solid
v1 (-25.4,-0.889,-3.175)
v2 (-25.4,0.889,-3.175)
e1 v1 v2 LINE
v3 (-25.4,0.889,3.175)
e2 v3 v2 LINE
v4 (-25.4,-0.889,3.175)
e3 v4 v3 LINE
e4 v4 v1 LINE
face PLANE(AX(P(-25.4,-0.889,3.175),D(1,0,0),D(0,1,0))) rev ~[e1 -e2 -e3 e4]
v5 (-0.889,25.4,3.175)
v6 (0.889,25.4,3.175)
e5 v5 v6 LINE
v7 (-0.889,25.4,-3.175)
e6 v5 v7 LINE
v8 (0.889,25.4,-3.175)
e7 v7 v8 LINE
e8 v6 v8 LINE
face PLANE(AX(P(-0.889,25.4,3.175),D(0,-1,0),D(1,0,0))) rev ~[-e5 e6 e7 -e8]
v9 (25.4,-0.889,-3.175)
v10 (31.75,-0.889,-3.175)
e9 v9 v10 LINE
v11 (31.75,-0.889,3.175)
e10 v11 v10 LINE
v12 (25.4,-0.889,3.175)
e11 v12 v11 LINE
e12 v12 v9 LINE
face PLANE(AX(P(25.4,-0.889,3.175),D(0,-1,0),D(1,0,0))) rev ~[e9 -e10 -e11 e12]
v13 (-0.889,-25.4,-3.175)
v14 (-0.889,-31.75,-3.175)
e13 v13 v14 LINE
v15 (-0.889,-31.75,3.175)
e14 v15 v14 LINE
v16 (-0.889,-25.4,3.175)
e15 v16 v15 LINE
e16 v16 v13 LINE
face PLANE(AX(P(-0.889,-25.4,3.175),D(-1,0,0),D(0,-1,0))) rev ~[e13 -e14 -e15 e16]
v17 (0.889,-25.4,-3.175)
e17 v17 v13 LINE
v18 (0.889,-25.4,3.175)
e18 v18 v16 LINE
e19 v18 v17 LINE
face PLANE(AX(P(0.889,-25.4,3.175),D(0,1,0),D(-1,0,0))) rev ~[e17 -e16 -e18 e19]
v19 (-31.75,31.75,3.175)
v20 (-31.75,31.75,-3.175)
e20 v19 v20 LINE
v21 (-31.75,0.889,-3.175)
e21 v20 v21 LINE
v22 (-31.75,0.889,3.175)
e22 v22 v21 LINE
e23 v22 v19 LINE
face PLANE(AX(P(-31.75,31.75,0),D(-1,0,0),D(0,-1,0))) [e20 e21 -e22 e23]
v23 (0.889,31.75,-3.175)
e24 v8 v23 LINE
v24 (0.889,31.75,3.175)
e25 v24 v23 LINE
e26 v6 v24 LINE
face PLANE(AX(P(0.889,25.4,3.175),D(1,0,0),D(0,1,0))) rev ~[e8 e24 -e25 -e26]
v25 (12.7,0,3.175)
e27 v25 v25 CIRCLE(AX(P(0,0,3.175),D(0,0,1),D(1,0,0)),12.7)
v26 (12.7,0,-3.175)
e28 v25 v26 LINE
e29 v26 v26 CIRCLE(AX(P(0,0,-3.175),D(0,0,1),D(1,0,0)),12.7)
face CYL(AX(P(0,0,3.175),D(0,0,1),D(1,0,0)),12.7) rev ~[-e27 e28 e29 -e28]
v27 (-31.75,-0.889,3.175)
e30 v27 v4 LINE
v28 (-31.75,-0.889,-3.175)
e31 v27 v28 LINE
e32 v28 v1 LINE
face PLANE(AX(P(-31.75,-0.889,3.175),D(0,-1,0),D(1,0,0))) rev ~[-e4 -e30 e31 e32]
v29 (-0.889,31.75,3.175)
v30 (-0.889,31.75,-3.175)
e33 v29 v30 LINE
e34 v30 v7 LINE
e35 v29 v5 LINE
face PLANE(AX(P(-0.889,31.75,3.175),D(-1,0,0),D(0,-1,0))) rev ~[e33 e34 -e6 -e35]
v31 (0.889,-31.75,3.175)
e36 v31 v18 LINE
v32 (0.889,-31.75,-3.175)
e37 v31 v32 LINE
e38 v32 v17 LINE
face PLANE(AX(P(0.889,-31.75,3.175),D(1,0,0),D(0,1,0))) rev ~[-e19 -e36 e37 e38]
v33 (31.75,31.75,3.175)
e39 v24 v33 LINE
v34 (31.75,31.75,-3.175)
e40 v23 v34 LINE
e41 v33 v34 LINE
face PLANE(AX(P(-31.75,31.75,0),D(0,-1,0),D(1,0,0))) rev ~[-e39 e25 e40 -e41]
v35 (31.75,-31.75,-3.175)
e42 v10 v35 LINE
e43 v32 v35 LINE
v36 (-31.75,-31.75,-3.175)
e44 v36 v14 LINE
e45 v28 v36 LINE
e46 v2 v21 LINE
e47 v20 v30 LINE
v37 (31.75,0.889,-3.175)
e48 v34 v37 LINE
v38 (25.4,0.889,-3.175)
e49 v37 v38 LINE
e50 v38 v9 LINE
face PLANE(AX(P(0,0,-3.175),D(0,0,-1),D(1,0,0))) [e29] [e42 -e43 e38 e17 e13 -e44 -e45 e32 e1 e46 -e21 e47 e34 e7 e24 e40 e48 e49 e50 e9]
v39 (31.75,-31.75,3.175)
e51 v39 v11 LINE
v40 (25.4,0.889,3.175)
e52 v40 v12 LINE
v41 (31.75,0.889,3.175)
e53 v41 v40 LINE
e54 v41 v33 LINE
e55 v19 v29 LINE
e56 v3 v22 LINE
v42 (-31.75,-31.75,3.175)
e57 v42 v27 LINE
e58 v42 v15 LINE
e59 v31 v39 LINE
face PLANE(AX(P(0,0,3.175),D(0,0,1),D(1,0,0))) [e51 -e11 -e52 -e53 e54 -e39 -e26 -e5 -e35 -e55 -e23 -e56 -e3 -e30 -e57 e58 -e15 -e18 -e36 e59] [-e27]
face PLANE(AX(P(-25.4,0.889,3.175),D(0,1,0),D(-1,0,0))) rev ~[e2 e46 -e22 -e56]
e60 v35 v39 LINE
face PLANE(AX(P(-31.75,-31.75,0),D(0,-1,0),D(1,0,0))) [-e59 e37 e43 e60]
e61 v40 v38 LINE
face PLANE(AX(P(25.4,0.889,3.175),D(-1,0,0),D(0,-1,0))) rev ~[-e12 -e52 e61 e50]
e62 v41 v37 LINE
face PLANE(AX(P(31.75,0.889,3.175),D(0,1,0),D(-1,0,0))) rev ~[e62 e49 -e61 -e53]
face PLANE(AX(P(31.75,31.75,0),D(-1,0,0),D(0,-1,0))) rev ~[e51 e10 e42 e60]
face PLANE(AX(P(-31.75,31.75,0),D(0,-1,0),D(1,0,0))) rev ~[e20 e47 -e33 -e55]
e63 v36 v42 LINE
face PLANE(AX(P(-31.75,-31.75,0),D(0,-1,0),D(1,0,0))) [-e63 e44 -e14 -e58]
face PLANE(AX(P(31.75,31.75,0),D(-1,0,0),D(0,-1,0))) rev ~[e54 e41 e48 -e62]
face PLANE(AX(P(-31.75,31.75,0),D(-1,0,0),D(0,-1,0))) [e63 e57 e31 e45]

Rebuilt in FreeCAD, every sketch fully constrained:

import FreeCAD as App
import Part
import Sketcher
Q = App.Units.Quantity

doc = App.newDocument("Part")
params = doc.addObject("Spreadsheet::Sheet", "Params")
for row, (alias, value) in enumerate([
    ("sketch1_width", "2.5 in"),
    ("pad1_length", "0.125 in"),
    ("sketch2_width", "2.5 in"),
    ("pad2_length", "0.125 in"),
    ("sketch3_diameter", "1 in"),
    ("sketch3_width", "0.07 in"),
    ("sketch3_width2", "0.25 in"),
    ("pocket1_length", "0.25 in"),
    ("sketch4_diameter", "1 in"),
    ("sketch4_width", "0.07 in"),
    ("sketch4_width2", "0.25 in"),
    ("pocket2_length", "1 in"),
    ("sketch5_diameter", "1 in"),
    ("sketch5_width", "0.07 in"),
    ("sketch5_width2", "0.25 in"),
    ("pocket3_length", "1 in"),
    ("sketch6_diameter", "1 in"),
    ("sketch6_width", "0.07 in"),
    ("sketch6_width2", "0.25 in"),
    ("pocket4_length", "1 in"),
    ("sketch7_diameter", "1 in"),
    ("sketch7_width", "0.07 in"),
    ("sketch7_width2", "0.25 in"),
    ("pocket5_length", "1 in"),
], start=1):
    params.set(f"A{row}", alias)
    params.set(f"B{row}", "=" + value)
    params.setAlias(f"B{row}", alias)

body = doc.addObject("PartDesign::Body", "Body")

# Sketch on XY plane
sketch1 = body.newObject("Sketcher::SketchObject", "Sketch")
sketch1.AttachmentSupport = (doc.getObject("XY_Plane"), [""])
sketch1.MapMode = "FlatFace"
sketch1.addGeometry([
    Part.LineSegment(App.Vector(-32, 32, 0), App.Vector(-32, -32, 0)),
    Part.LineSegment(App.Vector(-32, -32, 0), App.Vector(32, -32, 0)),
    Part.LineSegment(App.Vector(32, -32, 0), App.Vector(32, 32, 0)),
    Part.LineSegment(App.Vector(32, 32, 0), App.Vector(-32, 32, 0)),
], False)
sketch1.addConstraint([
    Sketcher.Constraint("Coincident", 0, 2, 1, 1),
    Sketcher.Constraint("Coincident", 1, 2, 2, 1),
    Sketcher.Constraint("Coincident", 2, 2, 3, 1),
    Sketcher.Constraint("Coincident", 3, 2, 0, 1),
    Sketcher.Constraint("Vertical", 0),
    Sketcher.Constraint("Horizontal", 1),
    Sketcher.Constraint("Vertical", 2),
    Sketcher.Constraint("Horizontal", 3),
    Sketcher.Constraint("Symmetric", 0, 2, 2, 2, -1, 1),
    Sketcher.Constraint("Equal", 3, 0),
    Sketcher.Constraint("DistanceX", 1, 1, 1, 2, Q("2.5 in")),
])
sketch1.setExpression("Constraints[10]", "Params.sketch1_width")
pad1 = body.newObject("PartDesign::Pad", "Pad")
pad1.Profile = sketch1
pad1.setExpression("Length", "Params.pad1_length")

# Sketch on XY plane
sketch2 = body.newObject("Sketcher::SketchObject", "Sketch001")
sketch2.AttachmentSupport = (doc.getObject("XY_Plane"), [""])
sketch2.MapMode = "FlatFace"
sketch2.addGeometry([
    Part.LineSegment(App.Vector(-32, -32, 0), App.Vector(-32, 32, 0)),
    Part.LineSegment(App.Vector(-32, 32, 0), App.Vector(32, 32, 0)),
    Part.LineSegment(App.Vector(32, 32, 0), App.Vector(32, -32, 0)),
    Part.LineSegment(App.Vector(32, -32, 0), App.Vector(-32, -32, 0)),
], False)
sketch2.addConstraint([
    Sketcher.Constraint("Coincident", 0, 2, 1, 1),
    Sketcher.Constraint("Coincident", 1, 2, 2, 1),
    Sketcher.Constraint("Coincident", 2, 2, 3, 1),
    Sketcher.Constraint("Coincident", 3, 2, 0, 1),
    Sketcher.Constraint("Vertical", 0),
    Sketcher.Constraint("Horizontal", 1),
    Sketcher.Constraint("Vertical", 2),
    Sketcher.Constraint("Horizontal", 3),
    Sketcher.Constraint("Symmetric", 0, 2, 2, 2, -1, 1),
    Sketcher.Constraint("Equal", 3, 0),
    Sketcher.Constraint("DistanceX", 1, 1, 1, 2, Q("2.5 in")),
])
sketch2.setExpression("Constraints[10]", "Params.sketch2_width")
pad2 = body.newObject("PartDesign::Pad", "Pad001")
pad2.Profile = sketch2
pad2.setExpression("Length", "Params.pad2_length")
pad2.Reversed = True

# Sketch on XY plane
sketch3 = body.newObject("Sketcher::SketchObject", "Sketch002")
sketch3.AttachmentSupport = (doc.getObject("XY_Plane"), [""])
sketch3.MapMode = "FlatFace"
sketch3.AttachmentOffset = App.Placement(App.Vector(0, 0, 0.125 * 25.4), App.Rotation())
sketch3.addGeometry([
    Part.Circle(App.Vector(0, 0, 0), App.Vector(0, 0, 1), 12.7),  # 0
    Part.LineSegment(App.Vector(0.9, 31.8, 0), App.Vector(-0.9, 31.8, 0)),  # 1
    Part.LineSegment(App.Vector(-0.9, 31.8, 0), App.Vector(-0.9, 25.4, 0)),  # 2
    Part.LineSegment(App.Vector(-0.9, 25.4, 0), App.Vector(0.9, 25.4, 0)),  # 3
    Part.LineSegment(App.Vector(0.9, 25.4, 0), App.Vector(0.9, 31.8, 0)),  # 4
    Part.LineSegment(App.Vector(31.8, -0.9, 0), App.Vector(31.8, 0.9, 0)),  # 5
    Part.LineSegment(App.Vector(31.8, 0.9, 0), App.Vector(25.4, 0.9, 0)),  # 6
    Part.LineSegment(App.Vector(25.4, 0.9, 0), App.Vector(25.4, -0.9, 0)),  # 7
    Part.LineSegment(App.Vector(25.4, -0.9, 0), App.Vector(31.8, -0.9, 0)),  # 8
    Part.LineSegment(App.Vector(-0.9, -31.8, 0), App.Vector(0.9, -31.8, 0)),  # 9
    Part.LineSegment(App.Vector(0.9, -31.8, 0), App.Vector(0.9, -25.4, 0)),  # 10
    Part.LineSegment(App.Vector(0.9, -25.4, 0), App.Vector(-0.9, -25.4, 0)),  # 11
    Part.LineSegment(App.Vector(-0.9, -25.4, 0), App.Vector(-0.9, -31.8, 0)),  # 12
    Part.LineSegment(App.Vector(-31.8, 0.9, 0), App.Vector(-31.8, -0.9, 0)),  # 13
    Part.LineSegment(App.Vector(-31.8, -0.9, 0), App.Vector(-25.4, -0.9, 0)),  # 14
    Part.LineSegment(App.Vector(-25.4, -0.9, 0), App.Vector(-25.4, 0.9, 0)),  # 15
    Part.LineSegment(App.Vector(-25.4, 0.9, 0), App.Vector(-31.8, 0.9, 0)),  # 16
], False)
sketch3.addConstraint([
    Sketcher.Constraint("Coincident", 1, 2, 2, 1),
    Sketcher.Constraint("Coincident", 2, 2, 3, 1),
    Sketcher.Constraint("Coincident", 3, 2, 4, 1),
    Sketcher.Constraint("Coincident", 4, 2, 1, 1),
    Sketcher.Constraint("Coincident", 5, 2, 6, 1),
    Sketcher.Constraint("Coincident", 6, 2, 7, 1),
    Sketcher.Constraint("Coincident", 7, 2, 8, 1),
    Sketcher.Constraint("Coincident", 8, 2, 5, 1),
    Sketcher.Constraint("Coincident", 9, 2, 10, 1),
    Sketcher.Constraint("Coincident", 10, 2, 11, 1),
    Sketcher.Constraint("Coincident", 11, 2, 12, 1),
    Sketcher.Constraint("Coincident", 12, 2, 9, 1),
    Sketcher.Constraint("Coincident", 13, 2, 14, 1),
    Sketcher.Constraint("Coincident", 14, 2, 15, 1),
    Sketcher.Constraint("Coincident", 15, 2, 16, 1),
    Sketcher.Constraint("Coincident", 16, 2, 13, 1),
    Sketcher.Constraint("Horizontal", 1),
    Sketcher.Constraint("Vertical", 2),
    Sketcher.Constraint("Horizontal", 3),
    Sketcher.Constraint("Vertical", 4),
    Sketcher.Constraint("Vertical", 5),
    Sketcher.Constraint("Horizontal", 6),
    Sketcher.Constraint("Vertical", 7),
    Sketcher.Constraint("Horizontal", 8),
    Sketcher.Constraint("Horizontal", 9),
    Sketcher.Constraint("Vertical", 10),
    Sketcher.Constraint("Horizontal", 11),
    Sketcher.Constraint("Vertical", 12),
    Sketcher.Constraint("Vertical", 13),
    Sketcher.Constraint("Horizontal", 14),
    Sketcher.Constraint("Vertical", 15),
    Sketcher.Constraint("Horizontal", 16),
    Sketcher.Constraint("Coincident", 0, 3, -1, 1),
    Sketcher.Constraint("Symmetric", 1, 2, 9, 2, -1, 1),
    Sketcher.Constraint("Symmetric", 3, 2, 11, 2, -1, 1),
    Sketcher.Constraint("Symmetric", 5, 2, 13, 2, -1, 1),
    Sketcher.Constraint("Symmetric", 7, 2, 15, 2, -1, 1),
    Sketcher.Constraint("Horizontal", 8, 2, 13, 2),
    Sketcher.Constraint("Vertical", 4, 2, 9, 2),
    Sketcher.Constraint("Equal", 16, 2),
    Sketcher.Constraint("Equal", 11, 5),
    Sketcher.Constraint("Diameter", 0, Q("1 in")),
    Sketcher.Constraint("DistanceY", -1, 1, 2, 2, Q("1 in")),
    Sketcher.Constraint("DistanceX", -1, 1, 6, 2, Q("1 in")),
    Sketcher.Constraint("DistanceX", 1, 2, 1, 1, Q("0.07 in")),
    Sketcher.Constraint("DistanceX", 6, 2, 6, 1, Q("0.25 in")),
])
sketch3.setExpression("Constraints[41]", "Params.sketch3_diameter")
sketch3.setExpression("Constraints[44]", "Params.sketch3_width")
sketch3.setExpression("Constraints[45]", "Params.sketch3_width2")
pocket1 = body.newObject("PartDesign::Pocket", "Pocket")
pocket1.Profile = sketch3
pocket1.setExpression("Length", "Params.pocket1_length")

# Sketch on XY plane
sketch4 = body.newObject("Sketcher::SketchObject", "Sketch003")
sketch4.AttachmentSupport = (doc.getObject("XY_Plane"), [""])
sketch4.MapMode = "FlatFace"
sketch4.AttachmentOffset = App.Placement(App.Vector(0, 0, 0.125 * 25.4), App.Rotation())
sketch4.addGeometry([
    Part.Circle(App.Vector(0, 0, 0), App.Vector(0, 0, 1), 12.7),  # 0
    Part.LineSegment(App.Vector(0.9, 31.8, 0), App.Vector(-0.9, 31.8, 0)),  # 1
    Part.LineSegment(App.Vector(-0.9, 31.8, 0), App.Vector(-0.9, 25.4, 0)),  # 2
    Part.LineSegment(App.Vector(-0.9, 25.4, 0), App.Vector(0.9, 25.4, 0)),  # 3
    Part.LineSegment(App.Vector(0.9, 25.4, 0), App.Vector(0.9, 31.8, 0)),  # 4
    Part.LineSegment(App.Vector(31.8, -0.9, 0), App.Vector(31.8, 0.9, 0)),  # 5
    Part.LineSegment(App.Vector(31.8, 0.9, 0), App.Vector(25.4, 0.9, 0)),  # 6
    Part.LineSegment(App.Vector(25.4, 0.9, 0), App.Vector(25.4, -0.9, 0)),  # 7
    Part.LineSegment(App.Vector(25.4, -0.9, 0), App.Vector(31.8, -0.9, 0)),  # 8
    Part.LineSegment(App.Vector(-0.9, -31.8, 0), App.Vector(0.9, -31.8, 0)),  # 9
    Part.LineSegment(App.Vector(0.9, -31.8, 0), App.Vector(0.9, -25.4, 0)),  # 10
    Part.LineSegment(App.Vector(0.9, -25.4, 0), App.Vector(-0.9, -25.4, 0)),  # 11
    Part.LineSegment(App.Vector(-0.9, -25.4, 0), App.Vector(-0.9, -31.8, 0)),  # 12
    Part.LineSegment(App.Vector(-31.8, 0.9, 0), App.Vector(-31.8, -0.9, 0)),  # 13
    Part.LineSegment(App.Vector(-31.8, -0.9, 0), App.Vector(-25.4, -0.9, 0)),  # 14
    Part.LineSegment(App.Vector(-25.4, -0.9, 0), App.Vector(-25.4, 0.9, 0)),  # 15
    Part.LineSegment(App.Vector(-25.4, 0.9, 0), App.Vector(-31.8, 0.9, 0)),  # 16
], False)
sketch4.addConstraint([
    Sketcher.Constraint("Coincident", 1, 2, 2, 1),
    Sketcher.Constraint("Coincident", 2, 2, 3, 1),
    Sketcher.Constraint("Coincident", 3, 2, 4, 1),
    Sketcher.Constraint("Coincident", 4, 2, 1, 1),
    Sketcher.Constraint("Coincident", 5, 2, 6, 1),
    Sketcher.Constraint("Coincident", 6, 2, 7, 1),
    Sketcher.Constraint("Coincident", 7, 2, 8, 1),
    Sketcher.Constraint("Coincident", 8, 2, 5, 1),
    Sketcher.Constraint("Coincident", 9, 2, 10, 1),
    Sketcher.Constraint("Coincident", 10, 2, 11, 1),
    Sketcher.Constraint("Coincident", 11, 2, 12, 1),
    Sketcher.Constraint("Coincident", 12, 2, 9, 1),
    Sketcher.Constraint("Coincident", 13, 2, 14, 1),
    Sketcher.Constraint("Coincident", 14, 2, 15, 1),
    Sketcher.Constraint("Coincident", 15, 2, 16, 1),
    Sketcher.Constraint("Coincident", 16, 2, 13, 1),
    Sketcher.Constraint("Horizontal", 1),
    Sketcher.Constraint("Vertical", 2),
    Sketcher.Constraint("Horizontal", 3),
    Sketcher.Constraint("Vertical", 4),
    Sketcher.Constraint("Vertical", 5),
    Sketcher.Constraint("Horizontal", 6),
    Sketcher.Constraint("Vertical", 7),
    Sketcher.Constraint("Horizontal", 8),
    Sketcher.Constraint("Horizontal", 9),
    Sketcher.Constraint("Vertical", 10),
    Sketcher.Constraint("Horizontal", 11),
    Sketcher.Constraint("Vertical", 12),
    Sketcher.Constraint("Vertical", 13),
    Sketcher.Constraint("Horizontal", 14),
    Sketcher.Constraint("Vertical", 15),
    Sketcher.Constraint("Horizontal", 16),
    Sketcher.Constraint("Coincident", 0, 3, -1, 1),
    Sketcher.Constraint("Symmetric", 1, 2, 9, 2, -1, 1),
    Sketcher.Constraint("Symmetric", 3, 2, 11, 2, -1, 1),
    Sketcher.Constraint("Symmetric", 5, 2, 13, 2, -1, 1),
    Sketcher.Constraint("Symmetric", 7, 2, 15, 2, -1, 1),
    Sketcher.Constraint("Horizontal", 8, 2, 13, 2),
    Sketcher.Constraint("Vertical", 4, 2, 9, 2),
    Sketcher.Constraint("Equal", 16, 2),
    Sketcher.Constraint("Equal", 11, 5),
    Sketcher.Constraint("Diameter", 0, Q("1 in")),
    Sketcher.Constraint("DistanceY", -1, 1, 2, 2, Q("1 in")),
    Sketcher.Constraint("DistanceX", -1, 1, 6, 2, Q("1 in")),
    Sketcher.Constraint("DistanceX", 1, 2, 1, 1, Q("0.07 in")),
    Sketcher.Constraint("DistanceX", 6, 2, 6, 1, Q("0.25 in")),
])
sketch4.setExpression("Constraints[41]", "Params.sketch4_diameter")
sketch4.setExpression("Constraints[44]", "Params.sketch4_width")
sketch4.setExpression("Constraints[45]", "Params.sketch4_width2")
pocket2 = body.newObject("PartDesign::Pocket", "Pocket001")
pocket2.Profile = sketch4
pocket2.setExpression("Length", "Params.pocket2_length")

# Sketch on XY plane
sketch5 = body.newObject("Sketcher::SketchObject", "Sketch004")
sketch5.AttachmentSupport = (doc.getObject("XY_Plane"), [""])
sketch5.MapMode = "FlatFace"
sketch5.AttachmentOffset = App.Placement(App.Vector(0, 0, 0.125 * 25.4), App.Rotation())
sketch5.addGeometry([
    Part.Circle(App.Vector(0, 0, 0), App.Vector(0, 0, 1), 12.7),  # 0
    Part.LineSegment(App.Vector(0.9, 31.8, 0), App.Vector(-0.9, 31.8, 0)),  # 1
    Part.LineSegment(App.Vector(-0.9, 31.8, 0), App.Vector(-0.9, 25.4, 0)),  # 2
    Part.LineSegment(App.Vector(-0.9, 25.4, 0), App.Vector(0.9, 25.4, 0)),  # 3
    Part.LineSegment(App.Vector(0.9, 25.4, 0), App.Vector(0.9, 31.8, 0)),  # 4
    Part.LineSegment(App.Vector(31.8, -0.9, 0), App.Vector(31.8, 0.9, 0)),  # 5
    Part.LineSegment(App.Vector(31.8, 0.9, 0), App.Vector(25.4, 0.9, 0)),  # 6
    Part.LineSegment(App.Vector(25.4, 0.9, 0), App.Vector(25.4, -0.9, 0)),  # 7
    Part.LineSegment(App.Vector(25.4, -0.9, 0), App.Vector(31.8, -0.9, 0)),  # 8
    Part.LineSegment(App.Vector(-0.9, -31.8, 0), App.Vector(0.9, -31.8, 0)),  # 9
    Part.LineSegment(App.Vector(0.9, -31.8, 0), App.Vector(0.9, -25.4, 0)),  # 10
    Part.LineSegment(App.Vector(0.9, -25.4, 0), App.Vector(-0.9, -25.4, 0)),  # 11
    Part.LineSegment(App.Vector(-0.9, -25.4, 0), App.Vector(-0.9, -31.8, 0)),  # 12
    Part.LineSegment(App.Vector(-31.8, 0.9, 0), App.Vector(-31.8, -0.9, 0)),  # 13
    Part.LineSegment(App.Vector(-31.8, -0.9, 0), App.Vector(-25.4, -0.9, 0)),  # 14
    Part.LineSegment(App.Vector(-25.4, -0.9, 0), App.Vector(-25.4, 0.9, 0)),  # 15
    Part.LineSegment(App.Vector(-25.4, 0.9, 0), App.Vector(-31.8, 0.9, 0)),  # 16
], False)
sketch5.addConstraint([
    Sketcher.Constraint("Coincident", 1, 2, 2, 1),
    Sketcher.Constraint("Coincident", 2, 2, 3, 1),
    Sketcher.Constraint("Coincident", 3, 2, 4, 1),
    Sketcher.Constraint("Coincident", 4, 2, 1, 1),
    Sketcher.Constraint("Coincident", 5, 2, 6, 1),
    Sketcher.Constraint("Coincident", 6, 2, 7, 1),
    Sketcher.Constraint("Coincident", 7, 2, 8, 1),
    Sketcher.Constraint("Coincident", 8, 2, 5, 1),
    Sketcher.Constraint("Coincident", 9, 2, 10, 1),
    Sketcher.Constraint("Coincident", 10, 2, 11, 1),
    Sketcher.Constraint("Coincident", 11, 2, 12, 1),
    Sketcher.Constraint("Coincident", 12, 2, 9, 1),
    Sketcher.Constraint("Coincident", 13, 2, 14, 1),
    Sketcher.Constraint("Coincident", 14, 2, 15, 1),
    Sketcher.Constraint("Coincident", 15, 2, 16, 1),
    Sketcher.Constraint("Coincident", 16, 2, 13, 1),
    Sketcher.Constraint("Horizontal", 1),
    Sketcher.Constraint("Vertical", 2),
    Sketcher.Constraint("Horizontal", 3),
    Sketcher.Constraint("Vertical", 4),
    Sketcher.Constraint("Vertical", 5),
    Sketcher.Constraint("Horizontal", 6),
    Sketcher.Constraint("Vertical", 7),
    Sketcher.Constraint("Horizontal", 8),
    Sketcher.Constraint("Horizontal", 9),
    Sketcher.Constraint("Vertical", 10),
    Sketcher.Constraint("Horizontal", 11),
    Sketcher.Constraint("Vertical", 12),
    Sketcher.Constraint("Vertical", 13),
    Sketcher.Constraint("Horizontal", 14),
    Sketcher.Constraint("Vertical", 15),
    Sketcher.Constraint("Horizontal", 16),
    Sketcher.Constraint("Coincident", 0, 3, -1, 1),
    Sketcher.Constraint("Symmetric", 1, 2, 9, 2, -1, 1),
    Sketcher.Constraint("Symmetric", 3, 2, 11, 2, -1, 1),
    Sketcher.Constraint("Symmetric", 5, 2, 13, 2, -1, 1),
    Sketcher.Constraint("Symmetric", 7, 2, 15, 2, -1, 1),
    Sketcher.Constraint("Horizontal", 8, 2, 13, 2),
    Sketcher.Constraint("Vertical", 4, 2, 9, 2),
    Sketcher.Constraint("Equal", 16, 2),
    Sketcher.Constraint("Equal", 11, 5),
    Sketcher.Constraint("Diameter", 0, Q("1 in")),
    Sketcher.Constraint("DistanceY", -1, 1, 2, 2, Q("1 in")),
    Sketcher.Constraint("DistanceX", -1, 1, 6, 2, Q("1 in")),
    Sketcher.Constraint("DistanceX", 1, 2, 1, 1, Q("0.07 in")),
    Sketcher.Constraint("DistanceX", 6, 2, 6, 1, Q("0.25 in")),
])
sketch5.setExpression("Constraints[41]", "Params.sketch5_diameter")
sketch5.setExpression("Constraints[44]", "Params.sketch5_width")
sketch5.setExpression("Constraints[45]", "Params.sketch5_width2")
pocket3 = body.newObject("PartDesign::Pocket", "Pocket002")
pocket3.Profile = sketch5
pocket3.setExpression("Length", "Params.pocket3_length")

# Sketch on XY plane
sketch6 = body.newObject("Sketcher::SketchObject", "Sketch005")
sketch6.AttachmentSupport = (doc.getObject("XY_Plane"), [""])
sketch6.MapMode = "FlatFace"
sketch6.AttachmentOffset = App.Placement(App.Vector(0, 0, 0.125 * 25.4), App.Rotation())
sketch6.addGeometry([
    Part.Circle(App.Vector(0, 0, 0), App.Vector(0, 0, 1), 12.7),  # 0
    Part.LineSegment(App.Vector(0.9, 31.8, 0), App.Vector(-0.9, 31.8, 0)),  # 1
    Part.LineSegment(App.Vector(-0.9, 31.8, 0), App.Vector(-0.9, 25.4, 0)),  # 2
    Part.LineSegment(App.Vector(-0.9, 25.4, 0), App.Vector(0.9, 25.4, 0)),  # 3
    Part.LineSegment(App.Vector(0.9, 25.4, 0), App.Vector(0.9, 31.8, 0)),  # 4
    Part.LineSegment(App.Vector(31.8, -0.9, 0), App.Vector(31.8, 0.9, 0)),  # 5
    Part.LineSegment(App.Vector(31.8, 0.9, 0), App.Vector(25.4, 0.9, 0)),  # 6
    Part.LineSegment(App.Vector(25.4, 0.9, 0), App.Vector(25.4, -0.9, 0)),  # 7
    Part.LineSegment(App.Vector(25.4, -0.9, 0), App.Vector(31.8, -0.9, 0)),  # 8
    Part.LineSegment(App.Vector(-0.9, -31.8, 0), App.Vector(0.9, -31.8, 0)),  # 9
    Part.LineSegment(App.Vector(0.9, -31.8, 0), App.Vector(0.9, -25.4, 0)),  # 10
    Part.LineSegment(App.Vector(0.9, -25.4, 0), App.Vector(-0.9, -25.4, 0)),  # 11
    Part.LineSegment(App.Vector(-0.9, -25.4, 0), App.Vector(-0.9, -31.8, 0)),  # 12
    Part.LineSegment(App.Vector(-31.8, 0.9, 0), App.Vector(-31.8, -0.9, 0)),  # 13
    Part.LineSegment(App.Vector(-31.8, -0.9, 0), App.Vector(-25.4, -0.9, 0)),  # 14
    Part.LineSegment(App.Vector(-25.4, -0.9, 0), App.Vector(-25.4, 0.9, 0)),  # 15
    Part.LineSegment(App.Vector(-25.4, 0.9, 0), App.Vector(-31.8, 0.9, 0)),  # 16
], False)
sketch6.addConstraint([
    Sketcher.Constraint("Coincident", 1, 2, 2, 1),
    Sketcher.Constraint("Coincident", 2, 2, 3, 1),
    Sketcher.Constraint("Coincident", 3, 2, 4, 1),
    Sketcher.Constraint("Coincident", 4, 2, 1, 1),
    Sketcher.Constraint("Coincident", 5, 2, 6, 1),
    Sketcher.Constraint("Coincident", 6, 2, 7, 1),
    Sketcher.Constraint("Coincident", 7, 2, 8, 1),
    Sketcher.Constraint("Coincident", 8, 2, 5, 1),
    Sketcher.Constraint("Coincident", 9, 2, 10, 1),
    Sketcher.Constraint("Coincident", 10, 2, 11, 1),
    Sketcher.Constraint("Coincident", 11, 2, 12, 1),
    Sketcher.Constraint("Coincident", 12, 2, 9, 1),
    Sketcher.Constraint("Coincident", 13, 2, 14, 1),
    Sketcher.Constraint("Coincident", 14, 2, 15, 1),
    Sketcher.Constraint("Coincident", 15, 2, 16, 1),
    Sketcher.Constraint("Coincident", 16, 2, 13, 1),
    Sketcher.Constraint("Horizontal", 1),
    Sketcher.Constraint("Vertical", 2),
    Sketcher.Constraint("Horizontal", 3),
    Sketcher.Constraint("Vertical", 4),
    Sketcher.Constraint("Vertical", 5),
    Sketcher.Constraint("Horizontal", 6),
    Sketcher.Constraint("Vertical", 7),
    Sketcher.Constraint("Horizontal", 8),
    Sketcher.Constraint("Horizontal", 9),
    Sketcher.Constraint("Vertical", 10),
    Sketcher.Constraint("Horizontal", 11),
    Sketcher.Constraint("Vertical", 12),
    Sketcher.Constraint("Vertical", 13),
    Sketcher.Constraint("Horizontal", 14),
    Sketcher.Constraint("Vertical", 15),
    Sketcher.Constraint("Horizontal", 16),
    Sketcher.Constraint("Coincident", 0, 3, -1, 1),
    Sketcher.Constraint("Symmetric", 1, 2, 9, 2, -1, 1),
    Sketcher.Constraint("Symmetric", 3, 2, 11, 2, -1, 1),
    Sketcher.Constraint("Symmetric", 5, 2, 13, 2, -1, 1),
    Sketcher.Constraint("Symmetric", 7, 2, 15, 2, -1, 1),
    Sketcher.Constraint("Horizontal", 8, 2, 13, 2),
    Sketcher.Constraint("Vertical", 4, 2, 9, 2),
    Sketcher.Constraint("Equal", 16, 2),
    Sketcher.Constraint("Equal", 11, 5),
    Sketcher.Constraint("Diameter", 0, Q("1 in")),
    Sketcher.Constraint("DistanceY", -1, 1, 2, 2, Q("1 in")),
    Sketcher.Constraint("DistanceX", -1, 1, 6, 2, Q("1 in")),
    Sketcher.Constraint("DistanceX", 1, 2, 1, 1, Q("0.07 in")),
    Sketcher.Constraint("DistanceX", 6, 2, 6, 1, Q("0.25 in")),
])
sketch6.setExpression("Constraints[41]", "Params.sketch6_diameter")
sketch6.setExpression("Constraints[44]", "Params.sketch6_width")
sketch6.setExpression("Constraints[45]", "Params.sketch6_width2")
pocket4 = body.newObject("PartDesign::Pocket", "Pocket003")
pocket4.Profile = sketch6
pocket4.setExpression("Length", "Params.pocket4_length")

# Sketch on XY plane
sketch7 = body.newObject("Sketcher::SketchObject", "Sketch006")
sketch7.AttachmentSupport = (doc.getObject("XY_Plane"), [""])
sketch7.MapMode = "FlatFace"
sketch7.AttachmentOffset = App.Placement(App.Vector(0, 0, 0.125 * 25.4), App.Rotation())
sketch7.addGeometry([
    Part.Circle(App.Vector(0, 0, 0), App.Vector(0, 0, 1), 12.7),  # 0
    Part.LineSegment(App.Vector(0.9, 31.8, 0), App.Vector(-0.9, 31.8, 0)),  # 1
    Part.LineSegment(App.Vector(-0.9, 31.8, 0), App.Vector(-0.9, 25.4, 0)),  # 2
    Part.LineSegment(App.Vector(-0.9, 25.4, 0), App.Vector(0.9, 25.4, 0)),  # 3
    Part.LineSegment(App.Vector(0.9, 25.4, 0), App.Vector(0.9, 31.8, 0)),  # 4
    Part.LineSegment(App.Vector(31.8, -0.9, 0), App.Vector(31.8, 0.9, 0)),  # 5
    Part.LineSegment(App.Vector(31.8, 0.9, 0), App.Vector(25.4, 0.9, 0)),  # 6
    Part.LineSegment(App.Vector(25.4, 0.9, 0), App.Vector(25.4, -0.9, 0)),  # 7
    Part.LineSegment(App.Vector(25.4, -0.9, 0), App.Vector(31.8, -0.9, 0)),  # 8
    Part.LineSegment(App.Vector(-0.9, -31.8, 0), App.Vector(0.9, -31.8, 0)),  # 9
    Part.LineSegment(App.Vector(0.9, -31.8, 0), App.Vector(0.9, -25.4, 0)),  # 10
    Part.LineSegment(App.Vector(0.9, -25.4, 0), App.Vector(-0.9, -25.4, 0)),  # 11
    Part.LineSegment(App.Vector(-0.9, -25.4, 0), App.Vector(-0.9, -31.8, 0)),  # 12
    Part.LineSegment(App.Vector(-31.8, 0.9, 0), App.Vector(-31.8, -0.9, 0)),  # 13
    Part.LineSegment(App.Vector(-31.8, -0.9, 0), App.Vector(-25.4, -0.9, 0)),  # 14
    Part.LineSegment(App.Vector(-25.4, -0.9, 0), App.Vector(-25.4, 0.9, 0)),  # 15
    Part.LineSegment(App.Vector(-25.4, 0.9, 0), App.Vector(-31.8, 0.9, 0)),  # 16
], False)
sketch7.addConstraint([
    Sketcher.Constraint("Coincident", 1, 2, 2, 1),
    Sketcher.Constraint("Coincident", 2, 2, 3, 1),
    Sketcher.Constraint("Coincident", 3, 2, 4, 1),
    Sketcher.Constraint("Coincident", 4, 2, 1, 1),
    Sketcher.Constraint("Coincident", 5, 2, 6, 1),
    Sketcher.Constraint("Coincident", 6, 2, 7, 1),
    Sketcher.Constraint("Coincident", 7, 2, 8, 1),
    Sketcher.Constraint("Coincident", 8, 2, 5, 1),
    Sketcher.Constraint("Coincident", 9, 2, 10, 1),
    Sketcher.Constraint("Coincident", 10, 2, 11, 1),
    Sketcher.Constraint("Coincident", 11, 2, 12, 1),
    Sketcher.Constraint("Coincident", 12, 2, 9, 1),
    Sketcher.Constraint("Coincident", 13, 2, 14, 1),
    Sketcher.Constraint("Coincident", 14, 2, 15, 1),
    Sketcher.Constraint("Coincident", 15, 2, 16, 1),
    Sketcher.Constraint("Coincident", 16, 2, 13, 1),
    Sketcher.Constraint("Horizontal", 1),
    Sketcher.Constraint("Vertical", 2),
    Sketcher.Constraint("Horizontal", 3),
    Sketcher.Constraint("Vertical", 4),
    Sketcher.Constraint("Vertical", 5),
    Sketcher.Constraint("Horizontal", 6),
    Sketcher.Constraint("Vertical", 7),
    Sketcher.Constraint("Horizontal", 8),
    Sketcher.Constraint("Horizontal", 9),
    Sketcher.Constraint("Vertical", 10),
    Sketcher.Constraint("Horizontal", 11),
    Sketcher.Constraint("Vertical", 12),
    Sketcher.Constraint("Vertical", 13),
    Sketcher.Constraint("Horizontal", 14),
    Sketcher.Constraint("Vertical", 15),
    Sketcher.Constraint("Horizontal", 16),
    Sketcher.Constraint("Coincident", 0, 3, -1, 1),
    Sketcher.Constraint("Symmetric", 1, 2, 9, 2, -1, 1),
    Sketcher.Constraint("Symmetric", 3, 2, 11, 2, -1, 1),
    Sketcher.Constraint("Symmetric", 5, 2, 13, 2, -1, 1),
    Sketcher.Constraint("Symmetric", 7, 2, 15, 2, -1, 1),
    Sketcher.Constraint("Horizontal", 8, 2, 13, 2),
    Sketcher.Constraint("Vertical", 4, 2, 9, 2),
    Sketcher.Constraint("Equal", 16, 2),
    Sketcher.Constraint("Equal", 11, 5),
    Sketcher.Constraint("Diameter", 0, Q("1 in")),
    Sketcher.Constraint("DistanceY", -1, 1, 2, 2, Q("1 in")),
    Sketcher.Constraint("DistanceX", -1, 1, 6, 2, Q("1 in")),
    Sketcher.Constraint("DistanceX", 1, 2, 1, 1, Q("0.07 in")),
    Sketcher.Constraint("DistanceX", 6, 2, 6, 1, Q("0.25 in")),
])
sketch7.setExpression("Constraints[41]", "Params.sketch7_diameter")
sketch7.setExpression("Constraints[44]", "Params.sketch7_width")
sketch7.setExpression("Constraints[45]", "Params.sketch7_width2")
pocket5 = body.newObject("PartDesign::Pocket", "Pocket004")
pocket5.Profile = sketch7
pocket5.setExpression("Length", "Params.pocket5_length")

doc.recompute()
